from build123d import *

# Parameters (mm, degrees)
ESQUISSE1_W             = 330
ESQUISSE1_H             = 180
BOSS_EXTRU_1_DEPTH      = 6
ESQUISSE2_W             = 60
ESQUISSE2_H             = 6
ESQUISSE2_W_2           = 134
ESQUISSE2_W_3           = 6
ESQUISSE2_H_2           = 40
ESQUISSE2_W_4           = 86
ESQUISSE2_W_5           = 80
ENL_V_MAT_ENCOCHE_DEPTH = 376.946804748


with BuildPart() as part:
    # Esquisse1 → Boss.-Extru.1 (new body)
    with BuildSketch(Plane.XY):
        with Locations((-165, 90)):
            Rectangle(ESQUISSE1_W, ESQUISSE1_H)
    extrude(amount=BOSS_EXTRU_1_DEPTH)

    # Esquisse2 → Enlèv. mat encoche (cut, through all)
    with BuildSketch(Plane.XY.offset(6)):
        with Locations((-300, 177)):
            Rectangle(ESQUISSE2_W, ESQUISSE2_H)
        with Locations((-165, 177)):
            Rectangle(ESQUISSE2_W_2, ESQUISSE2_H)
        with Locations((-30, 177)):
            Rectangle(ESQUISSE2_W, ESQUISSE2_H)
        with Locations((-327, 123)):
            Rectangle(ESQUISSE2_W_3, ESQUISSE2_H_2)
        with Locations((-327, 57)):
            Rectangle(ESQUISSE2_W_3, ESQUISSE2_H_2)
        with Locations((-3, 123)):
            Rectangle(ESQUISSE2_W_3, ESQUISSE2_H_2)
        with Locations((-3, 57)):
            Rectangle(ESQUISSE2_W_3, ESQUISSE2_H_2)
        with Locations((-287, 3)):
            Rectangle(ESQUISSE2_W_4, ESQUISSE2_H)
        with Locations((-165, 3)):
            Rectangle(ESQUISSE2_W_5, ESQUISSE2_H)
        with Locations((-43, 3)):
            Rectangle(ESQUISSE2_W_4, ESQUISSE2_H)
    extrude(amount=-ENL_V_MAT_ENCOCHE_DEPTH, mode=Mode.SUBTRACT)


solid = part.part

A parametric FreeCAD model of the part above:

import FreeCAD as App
import Part
import Sketcher
from FreeCAD import Vector
Q = App.Units.Quantity


def add_polygon(sketch, points):
    """Adds a closed chain of lines whose ends are joined by coincident constraints."""
    first, n = sketch.GeometryCount, len(points)
    for a, b in zip(points, points[1:] + points[:1]):
        sketch.addGeometry(Part.LineSegment(App.Vector(*a, 0), App.Vector(*b, 0)), False)
    for i in range(n):
        sketch.addConstraint(Sketcher.Constraint("Coincident", first + i, 2, first + (i + 1) % n, 1))

doc = App.newDocument("Part")
body = doc.addObject("PartDesign::Body", "Body")

# Sketch on XY plane
sketch1 = doc.addObject("Sketcher::SketchObject", "Sketch")
body.addObject(sketch1)
sketch1.AttachmentSupport = (doc.XY_Plane, [""])
sketch1.MapMode = "FlatFace"
add_polygon(sketch1, [(-330, 180), (-330, 0), (0, 0), (0, 180)])  # lines 0-3
sketch1.addConstraint([
    Sketcher.Constraint("Vertical", 0),
    Sketcher.Constraint("Horizontal", 1),
    Sketcher.Constraint("Vertical", 2),
    Sketcher.Constraint("Horizontal", 3),
    Sketcher.Constraint("Coincident", 1, 2, -1, 1),
    Sketcher.Constraint("DistanceX", 1, 1, 1, 2, Q("330 mm")),
    Sketcher.Constraint("DistanceY", 0, 2, 0, 1, Q("180 mm")),
])
pad1 = doc.addObject("PartDesign::Pad", "Pad")
body.addObject(pad1)
pad1.Profile = sketch1
pad1.Length = 6

# Sketch on XY plane
sketch2 = doc.addObject("Sketcher::SketchObject", "Sketch001")
body.addObject(sketch2)
sketch2.AttachmentSupport = (doc.XY_Plane, [""])
sketch2.MapMode = "FlatFace"
sketch2.AttachmentOffset = App.Placement(Vector(0, 0, 6), App.Rotation())
add_polygon(sketch2, [(-330, 180), (-330, 174), (-270, 174), (-270, 180)])  # lines 0-3
add_polygon(sketch2, [(-232, 180), (-232, 174), (-98, 174), (-98, 180)])  # lines 4-7
add_polygon(sketch2, [(-60, 180), (-60, 174), (0, 174), (0, 180)])  # lines 8-11
add_polygon(sketch2, [(-330, 143), (-330, 103), (-324, 103), (-324, 143)])  # lines 12-15
add_polygon(sketch2, [(-330, 77), (-330, 37), (-324, 37), (-324, 77)])  # lines 16-19
add_polygon(sketch2, [(-6, 143), (-6, 103), (0, 103), (0, 143)])  # lines 20-23
add_polygon(sketch2, [(-6, 77), (-6, 37), (0, 37), (0, 77)])  # lines 24-27
add_polygon(sketch2, [(-330, 6), (-330, 0), (-244, 0), (-244, 6)])  # lines 28-31
add_polygon(sketch2, [(-205, 6), (-205, 0), (-125, 0), (-125, 6)])  # lines 32-35
add_polygon(sketch2, [(-86, 6), (-86, 0), (0, 0), (0, 6)])  # lines 36-39
sketch2.addConstraint([
    Sketcher.Constraint("Vertical", 0),
    Sketcher.Constraint("Horizontal", 1),
    Sketcher.Constraint("Vertical", 2),
    Sketcher.Constraint("Horizontal", 3),
    Sketcher.Constraint("Vertical", 4),
    Sketcher.Constraint("Horizontal", 5),
    Sketcher.Constraint("Vertical", 6),
    Sketcher.Constraint("Horizontal", 7),
    Sketcher.Constraint("Vertical", 8),
    Sketcher.Constraint("Horizontal", 9),
    Sketcher.Constraint("Vertical", 10),
    Sketcher.Constraint("Horizontal", 11),
    Sketcher.Constraint("Vertical", 12),
    Sketcher.Constraint("Horizontal", 13),
    Sketcher.Constraint("Vertical", 14),
    Sketcher.Constraint("Horizontal", 15),
    Sketcher.Constraint("Vertical", 16),
    Sketcher.Constraint("Horizontal", 17),
    Sketcher.Constraint("Vertical", 18),
    Sketcher.Constraint("Horizontal", 19),
    Sketcher.Constraint("Vertical", 20),
    Sketcher.Constraint("Horizontal", 21),
    Sketcher.Constraint("Vertical", 22),
    Sketcher.Constraint("Horizontal", 23),
    Sketcher.Constraint("Vertical", 24),
    Sketcher.Constraint("Horizontal", 25),
    Sketcher.Constraint("Vertical", 26),
    Sketcher.Constraint("Horizontal", 27),
    Sketcher.Constraint("Vertical", 28),
    Sketcher.Constraint("Horizontal", 29),
    Sketcher.Constraint("Vertical", 30),
    Sketcher.Constraint("Horizontal", 31),
    Sketcher.Constraint("Vertical", 32),
    Sketcher.Constraint("Horizontal", 33),
    Sketcher.Constraint("Vertical", 34),
    Sketcher.Constraint("Horizontal", 35),
    Sketcher.Constraint("Vertical", 36),
    Sketcher.Constraint("Horizontal", 37),
    Sketcher.Constraint("Vertical", 38),
    Sketcher.Constraint("Horizontal", 39),
    Sketcher.Constraint("Coincident", 37, 2, -1, 1),
    Sketcher.Constraint("PointOnObject", 9, 2, -2),
    Sketcher.Constraint("PointOnObject", 21, 2, -2),
    Sketcher.Constraint("PointOnObject", 25, 2, -2),
    Sketcher.Constraint("PointOnObject", 28, 2, -1),
    Sketcher.Constraint("PointOnObject", 32, 2, -1),
    Sketcher.Constraint("Horizontal", 1, 2, 4, 2),
    Sketcher.Constraint("Horizontal", 3, 2, 6, 2),
    Sketcher.Constraint("Horizontal", 5, 2, 8, 2),
    Sketcher.Constraint("Horizontal", 7, 2, 10, 2),
    Sketcher.Constraint("Horizontal", 13, 2, 20, 2),
    Sketcher.Constraint("Horizontal", 15, 2, 22, 2),
    Sketcher.Constraint("Horizontal", 17, 2, 24, 2),
    Sketcher.Constraint("Horizontal", 19, 2, 26, 2),
    Sketcher.Constraint("Horizontal", 31, 2, 34, 2),
    Sketcher.Constraint("Horizontal", 35, 2, 38, 2),
    Sketcher.Constraint("Vertical", 3, 2, 12, 2),
    Sketcher.Constraint("Vertical", 15, 2, 16, 2),
    Sketcher.Constraint("Vertical", 14, 2, 17, 2),
    Sketcher.Constraint("Vertical", 23, 2, 24, 2),
    Sketcher.Constraint("Vertical", 19, 2, 28, 2),
    Sketcher.Constraint("Equal", 3, 9),
    Sketcher.Constraint("Equal", 19, 21),
    Sketcher.Constraint("Equal", 31, 37),
    Sketcher.Constraint("Equal", 27, 0),
    Sketcher.Constraint("Equal", 14, 16),
    Sketcher.Constraint("Equal", 10, 28),
    Sketcher.Constraint("DistanceX", 1, 1, 1, 2, Q("60 mm")),
    Sketcher.Constraint("DistanceX", 5, 1, 5, 2, Q("134 mm")),
    Sketcher.Constraint("DistanceX", 13, 1, 13, 2, Q("6 mm")),
    Sketcher.Constraint("DistanceX", 29, 1, 29, 2, Q("86 mm")),
    Sketcher.Constraint("DistanceX", 33, 1, 33, 2, Q("80 mm")),
    Sketcher.Constraint("DistanceY", 12, 2, 12, 1, Q("40 mm")),
    Sketcher.Constraint("DistanceX", 0, 2, -1, 1, Q("330 mm")),
    Sketcher.Constraint("DistanceY", -1, 1, 0, 2, Q("174 mm")),
    Sketcher.Constraint("DistanceX", 4, 2, -1, 1, Q("232 mm")),
    Sketcher.Constraint("DistanceY", -1, 1, 12, 2, Q("103 mm")),
    Sketcher.Constraint("DistanceY", -1, 1, 16, 2, Q("37 mm")),
    Sketcher.Constraint("DistanceX", 32, 2, -1, 1, Q("205 mm")),
])
pocket1 = doc.addObject("PartDesign::Pocket", "Pocket")
body.addObject(pocket1)
pocket1.Profile = sketch2
pocket1.Type = "ThroughAll"

doc.recompute()
